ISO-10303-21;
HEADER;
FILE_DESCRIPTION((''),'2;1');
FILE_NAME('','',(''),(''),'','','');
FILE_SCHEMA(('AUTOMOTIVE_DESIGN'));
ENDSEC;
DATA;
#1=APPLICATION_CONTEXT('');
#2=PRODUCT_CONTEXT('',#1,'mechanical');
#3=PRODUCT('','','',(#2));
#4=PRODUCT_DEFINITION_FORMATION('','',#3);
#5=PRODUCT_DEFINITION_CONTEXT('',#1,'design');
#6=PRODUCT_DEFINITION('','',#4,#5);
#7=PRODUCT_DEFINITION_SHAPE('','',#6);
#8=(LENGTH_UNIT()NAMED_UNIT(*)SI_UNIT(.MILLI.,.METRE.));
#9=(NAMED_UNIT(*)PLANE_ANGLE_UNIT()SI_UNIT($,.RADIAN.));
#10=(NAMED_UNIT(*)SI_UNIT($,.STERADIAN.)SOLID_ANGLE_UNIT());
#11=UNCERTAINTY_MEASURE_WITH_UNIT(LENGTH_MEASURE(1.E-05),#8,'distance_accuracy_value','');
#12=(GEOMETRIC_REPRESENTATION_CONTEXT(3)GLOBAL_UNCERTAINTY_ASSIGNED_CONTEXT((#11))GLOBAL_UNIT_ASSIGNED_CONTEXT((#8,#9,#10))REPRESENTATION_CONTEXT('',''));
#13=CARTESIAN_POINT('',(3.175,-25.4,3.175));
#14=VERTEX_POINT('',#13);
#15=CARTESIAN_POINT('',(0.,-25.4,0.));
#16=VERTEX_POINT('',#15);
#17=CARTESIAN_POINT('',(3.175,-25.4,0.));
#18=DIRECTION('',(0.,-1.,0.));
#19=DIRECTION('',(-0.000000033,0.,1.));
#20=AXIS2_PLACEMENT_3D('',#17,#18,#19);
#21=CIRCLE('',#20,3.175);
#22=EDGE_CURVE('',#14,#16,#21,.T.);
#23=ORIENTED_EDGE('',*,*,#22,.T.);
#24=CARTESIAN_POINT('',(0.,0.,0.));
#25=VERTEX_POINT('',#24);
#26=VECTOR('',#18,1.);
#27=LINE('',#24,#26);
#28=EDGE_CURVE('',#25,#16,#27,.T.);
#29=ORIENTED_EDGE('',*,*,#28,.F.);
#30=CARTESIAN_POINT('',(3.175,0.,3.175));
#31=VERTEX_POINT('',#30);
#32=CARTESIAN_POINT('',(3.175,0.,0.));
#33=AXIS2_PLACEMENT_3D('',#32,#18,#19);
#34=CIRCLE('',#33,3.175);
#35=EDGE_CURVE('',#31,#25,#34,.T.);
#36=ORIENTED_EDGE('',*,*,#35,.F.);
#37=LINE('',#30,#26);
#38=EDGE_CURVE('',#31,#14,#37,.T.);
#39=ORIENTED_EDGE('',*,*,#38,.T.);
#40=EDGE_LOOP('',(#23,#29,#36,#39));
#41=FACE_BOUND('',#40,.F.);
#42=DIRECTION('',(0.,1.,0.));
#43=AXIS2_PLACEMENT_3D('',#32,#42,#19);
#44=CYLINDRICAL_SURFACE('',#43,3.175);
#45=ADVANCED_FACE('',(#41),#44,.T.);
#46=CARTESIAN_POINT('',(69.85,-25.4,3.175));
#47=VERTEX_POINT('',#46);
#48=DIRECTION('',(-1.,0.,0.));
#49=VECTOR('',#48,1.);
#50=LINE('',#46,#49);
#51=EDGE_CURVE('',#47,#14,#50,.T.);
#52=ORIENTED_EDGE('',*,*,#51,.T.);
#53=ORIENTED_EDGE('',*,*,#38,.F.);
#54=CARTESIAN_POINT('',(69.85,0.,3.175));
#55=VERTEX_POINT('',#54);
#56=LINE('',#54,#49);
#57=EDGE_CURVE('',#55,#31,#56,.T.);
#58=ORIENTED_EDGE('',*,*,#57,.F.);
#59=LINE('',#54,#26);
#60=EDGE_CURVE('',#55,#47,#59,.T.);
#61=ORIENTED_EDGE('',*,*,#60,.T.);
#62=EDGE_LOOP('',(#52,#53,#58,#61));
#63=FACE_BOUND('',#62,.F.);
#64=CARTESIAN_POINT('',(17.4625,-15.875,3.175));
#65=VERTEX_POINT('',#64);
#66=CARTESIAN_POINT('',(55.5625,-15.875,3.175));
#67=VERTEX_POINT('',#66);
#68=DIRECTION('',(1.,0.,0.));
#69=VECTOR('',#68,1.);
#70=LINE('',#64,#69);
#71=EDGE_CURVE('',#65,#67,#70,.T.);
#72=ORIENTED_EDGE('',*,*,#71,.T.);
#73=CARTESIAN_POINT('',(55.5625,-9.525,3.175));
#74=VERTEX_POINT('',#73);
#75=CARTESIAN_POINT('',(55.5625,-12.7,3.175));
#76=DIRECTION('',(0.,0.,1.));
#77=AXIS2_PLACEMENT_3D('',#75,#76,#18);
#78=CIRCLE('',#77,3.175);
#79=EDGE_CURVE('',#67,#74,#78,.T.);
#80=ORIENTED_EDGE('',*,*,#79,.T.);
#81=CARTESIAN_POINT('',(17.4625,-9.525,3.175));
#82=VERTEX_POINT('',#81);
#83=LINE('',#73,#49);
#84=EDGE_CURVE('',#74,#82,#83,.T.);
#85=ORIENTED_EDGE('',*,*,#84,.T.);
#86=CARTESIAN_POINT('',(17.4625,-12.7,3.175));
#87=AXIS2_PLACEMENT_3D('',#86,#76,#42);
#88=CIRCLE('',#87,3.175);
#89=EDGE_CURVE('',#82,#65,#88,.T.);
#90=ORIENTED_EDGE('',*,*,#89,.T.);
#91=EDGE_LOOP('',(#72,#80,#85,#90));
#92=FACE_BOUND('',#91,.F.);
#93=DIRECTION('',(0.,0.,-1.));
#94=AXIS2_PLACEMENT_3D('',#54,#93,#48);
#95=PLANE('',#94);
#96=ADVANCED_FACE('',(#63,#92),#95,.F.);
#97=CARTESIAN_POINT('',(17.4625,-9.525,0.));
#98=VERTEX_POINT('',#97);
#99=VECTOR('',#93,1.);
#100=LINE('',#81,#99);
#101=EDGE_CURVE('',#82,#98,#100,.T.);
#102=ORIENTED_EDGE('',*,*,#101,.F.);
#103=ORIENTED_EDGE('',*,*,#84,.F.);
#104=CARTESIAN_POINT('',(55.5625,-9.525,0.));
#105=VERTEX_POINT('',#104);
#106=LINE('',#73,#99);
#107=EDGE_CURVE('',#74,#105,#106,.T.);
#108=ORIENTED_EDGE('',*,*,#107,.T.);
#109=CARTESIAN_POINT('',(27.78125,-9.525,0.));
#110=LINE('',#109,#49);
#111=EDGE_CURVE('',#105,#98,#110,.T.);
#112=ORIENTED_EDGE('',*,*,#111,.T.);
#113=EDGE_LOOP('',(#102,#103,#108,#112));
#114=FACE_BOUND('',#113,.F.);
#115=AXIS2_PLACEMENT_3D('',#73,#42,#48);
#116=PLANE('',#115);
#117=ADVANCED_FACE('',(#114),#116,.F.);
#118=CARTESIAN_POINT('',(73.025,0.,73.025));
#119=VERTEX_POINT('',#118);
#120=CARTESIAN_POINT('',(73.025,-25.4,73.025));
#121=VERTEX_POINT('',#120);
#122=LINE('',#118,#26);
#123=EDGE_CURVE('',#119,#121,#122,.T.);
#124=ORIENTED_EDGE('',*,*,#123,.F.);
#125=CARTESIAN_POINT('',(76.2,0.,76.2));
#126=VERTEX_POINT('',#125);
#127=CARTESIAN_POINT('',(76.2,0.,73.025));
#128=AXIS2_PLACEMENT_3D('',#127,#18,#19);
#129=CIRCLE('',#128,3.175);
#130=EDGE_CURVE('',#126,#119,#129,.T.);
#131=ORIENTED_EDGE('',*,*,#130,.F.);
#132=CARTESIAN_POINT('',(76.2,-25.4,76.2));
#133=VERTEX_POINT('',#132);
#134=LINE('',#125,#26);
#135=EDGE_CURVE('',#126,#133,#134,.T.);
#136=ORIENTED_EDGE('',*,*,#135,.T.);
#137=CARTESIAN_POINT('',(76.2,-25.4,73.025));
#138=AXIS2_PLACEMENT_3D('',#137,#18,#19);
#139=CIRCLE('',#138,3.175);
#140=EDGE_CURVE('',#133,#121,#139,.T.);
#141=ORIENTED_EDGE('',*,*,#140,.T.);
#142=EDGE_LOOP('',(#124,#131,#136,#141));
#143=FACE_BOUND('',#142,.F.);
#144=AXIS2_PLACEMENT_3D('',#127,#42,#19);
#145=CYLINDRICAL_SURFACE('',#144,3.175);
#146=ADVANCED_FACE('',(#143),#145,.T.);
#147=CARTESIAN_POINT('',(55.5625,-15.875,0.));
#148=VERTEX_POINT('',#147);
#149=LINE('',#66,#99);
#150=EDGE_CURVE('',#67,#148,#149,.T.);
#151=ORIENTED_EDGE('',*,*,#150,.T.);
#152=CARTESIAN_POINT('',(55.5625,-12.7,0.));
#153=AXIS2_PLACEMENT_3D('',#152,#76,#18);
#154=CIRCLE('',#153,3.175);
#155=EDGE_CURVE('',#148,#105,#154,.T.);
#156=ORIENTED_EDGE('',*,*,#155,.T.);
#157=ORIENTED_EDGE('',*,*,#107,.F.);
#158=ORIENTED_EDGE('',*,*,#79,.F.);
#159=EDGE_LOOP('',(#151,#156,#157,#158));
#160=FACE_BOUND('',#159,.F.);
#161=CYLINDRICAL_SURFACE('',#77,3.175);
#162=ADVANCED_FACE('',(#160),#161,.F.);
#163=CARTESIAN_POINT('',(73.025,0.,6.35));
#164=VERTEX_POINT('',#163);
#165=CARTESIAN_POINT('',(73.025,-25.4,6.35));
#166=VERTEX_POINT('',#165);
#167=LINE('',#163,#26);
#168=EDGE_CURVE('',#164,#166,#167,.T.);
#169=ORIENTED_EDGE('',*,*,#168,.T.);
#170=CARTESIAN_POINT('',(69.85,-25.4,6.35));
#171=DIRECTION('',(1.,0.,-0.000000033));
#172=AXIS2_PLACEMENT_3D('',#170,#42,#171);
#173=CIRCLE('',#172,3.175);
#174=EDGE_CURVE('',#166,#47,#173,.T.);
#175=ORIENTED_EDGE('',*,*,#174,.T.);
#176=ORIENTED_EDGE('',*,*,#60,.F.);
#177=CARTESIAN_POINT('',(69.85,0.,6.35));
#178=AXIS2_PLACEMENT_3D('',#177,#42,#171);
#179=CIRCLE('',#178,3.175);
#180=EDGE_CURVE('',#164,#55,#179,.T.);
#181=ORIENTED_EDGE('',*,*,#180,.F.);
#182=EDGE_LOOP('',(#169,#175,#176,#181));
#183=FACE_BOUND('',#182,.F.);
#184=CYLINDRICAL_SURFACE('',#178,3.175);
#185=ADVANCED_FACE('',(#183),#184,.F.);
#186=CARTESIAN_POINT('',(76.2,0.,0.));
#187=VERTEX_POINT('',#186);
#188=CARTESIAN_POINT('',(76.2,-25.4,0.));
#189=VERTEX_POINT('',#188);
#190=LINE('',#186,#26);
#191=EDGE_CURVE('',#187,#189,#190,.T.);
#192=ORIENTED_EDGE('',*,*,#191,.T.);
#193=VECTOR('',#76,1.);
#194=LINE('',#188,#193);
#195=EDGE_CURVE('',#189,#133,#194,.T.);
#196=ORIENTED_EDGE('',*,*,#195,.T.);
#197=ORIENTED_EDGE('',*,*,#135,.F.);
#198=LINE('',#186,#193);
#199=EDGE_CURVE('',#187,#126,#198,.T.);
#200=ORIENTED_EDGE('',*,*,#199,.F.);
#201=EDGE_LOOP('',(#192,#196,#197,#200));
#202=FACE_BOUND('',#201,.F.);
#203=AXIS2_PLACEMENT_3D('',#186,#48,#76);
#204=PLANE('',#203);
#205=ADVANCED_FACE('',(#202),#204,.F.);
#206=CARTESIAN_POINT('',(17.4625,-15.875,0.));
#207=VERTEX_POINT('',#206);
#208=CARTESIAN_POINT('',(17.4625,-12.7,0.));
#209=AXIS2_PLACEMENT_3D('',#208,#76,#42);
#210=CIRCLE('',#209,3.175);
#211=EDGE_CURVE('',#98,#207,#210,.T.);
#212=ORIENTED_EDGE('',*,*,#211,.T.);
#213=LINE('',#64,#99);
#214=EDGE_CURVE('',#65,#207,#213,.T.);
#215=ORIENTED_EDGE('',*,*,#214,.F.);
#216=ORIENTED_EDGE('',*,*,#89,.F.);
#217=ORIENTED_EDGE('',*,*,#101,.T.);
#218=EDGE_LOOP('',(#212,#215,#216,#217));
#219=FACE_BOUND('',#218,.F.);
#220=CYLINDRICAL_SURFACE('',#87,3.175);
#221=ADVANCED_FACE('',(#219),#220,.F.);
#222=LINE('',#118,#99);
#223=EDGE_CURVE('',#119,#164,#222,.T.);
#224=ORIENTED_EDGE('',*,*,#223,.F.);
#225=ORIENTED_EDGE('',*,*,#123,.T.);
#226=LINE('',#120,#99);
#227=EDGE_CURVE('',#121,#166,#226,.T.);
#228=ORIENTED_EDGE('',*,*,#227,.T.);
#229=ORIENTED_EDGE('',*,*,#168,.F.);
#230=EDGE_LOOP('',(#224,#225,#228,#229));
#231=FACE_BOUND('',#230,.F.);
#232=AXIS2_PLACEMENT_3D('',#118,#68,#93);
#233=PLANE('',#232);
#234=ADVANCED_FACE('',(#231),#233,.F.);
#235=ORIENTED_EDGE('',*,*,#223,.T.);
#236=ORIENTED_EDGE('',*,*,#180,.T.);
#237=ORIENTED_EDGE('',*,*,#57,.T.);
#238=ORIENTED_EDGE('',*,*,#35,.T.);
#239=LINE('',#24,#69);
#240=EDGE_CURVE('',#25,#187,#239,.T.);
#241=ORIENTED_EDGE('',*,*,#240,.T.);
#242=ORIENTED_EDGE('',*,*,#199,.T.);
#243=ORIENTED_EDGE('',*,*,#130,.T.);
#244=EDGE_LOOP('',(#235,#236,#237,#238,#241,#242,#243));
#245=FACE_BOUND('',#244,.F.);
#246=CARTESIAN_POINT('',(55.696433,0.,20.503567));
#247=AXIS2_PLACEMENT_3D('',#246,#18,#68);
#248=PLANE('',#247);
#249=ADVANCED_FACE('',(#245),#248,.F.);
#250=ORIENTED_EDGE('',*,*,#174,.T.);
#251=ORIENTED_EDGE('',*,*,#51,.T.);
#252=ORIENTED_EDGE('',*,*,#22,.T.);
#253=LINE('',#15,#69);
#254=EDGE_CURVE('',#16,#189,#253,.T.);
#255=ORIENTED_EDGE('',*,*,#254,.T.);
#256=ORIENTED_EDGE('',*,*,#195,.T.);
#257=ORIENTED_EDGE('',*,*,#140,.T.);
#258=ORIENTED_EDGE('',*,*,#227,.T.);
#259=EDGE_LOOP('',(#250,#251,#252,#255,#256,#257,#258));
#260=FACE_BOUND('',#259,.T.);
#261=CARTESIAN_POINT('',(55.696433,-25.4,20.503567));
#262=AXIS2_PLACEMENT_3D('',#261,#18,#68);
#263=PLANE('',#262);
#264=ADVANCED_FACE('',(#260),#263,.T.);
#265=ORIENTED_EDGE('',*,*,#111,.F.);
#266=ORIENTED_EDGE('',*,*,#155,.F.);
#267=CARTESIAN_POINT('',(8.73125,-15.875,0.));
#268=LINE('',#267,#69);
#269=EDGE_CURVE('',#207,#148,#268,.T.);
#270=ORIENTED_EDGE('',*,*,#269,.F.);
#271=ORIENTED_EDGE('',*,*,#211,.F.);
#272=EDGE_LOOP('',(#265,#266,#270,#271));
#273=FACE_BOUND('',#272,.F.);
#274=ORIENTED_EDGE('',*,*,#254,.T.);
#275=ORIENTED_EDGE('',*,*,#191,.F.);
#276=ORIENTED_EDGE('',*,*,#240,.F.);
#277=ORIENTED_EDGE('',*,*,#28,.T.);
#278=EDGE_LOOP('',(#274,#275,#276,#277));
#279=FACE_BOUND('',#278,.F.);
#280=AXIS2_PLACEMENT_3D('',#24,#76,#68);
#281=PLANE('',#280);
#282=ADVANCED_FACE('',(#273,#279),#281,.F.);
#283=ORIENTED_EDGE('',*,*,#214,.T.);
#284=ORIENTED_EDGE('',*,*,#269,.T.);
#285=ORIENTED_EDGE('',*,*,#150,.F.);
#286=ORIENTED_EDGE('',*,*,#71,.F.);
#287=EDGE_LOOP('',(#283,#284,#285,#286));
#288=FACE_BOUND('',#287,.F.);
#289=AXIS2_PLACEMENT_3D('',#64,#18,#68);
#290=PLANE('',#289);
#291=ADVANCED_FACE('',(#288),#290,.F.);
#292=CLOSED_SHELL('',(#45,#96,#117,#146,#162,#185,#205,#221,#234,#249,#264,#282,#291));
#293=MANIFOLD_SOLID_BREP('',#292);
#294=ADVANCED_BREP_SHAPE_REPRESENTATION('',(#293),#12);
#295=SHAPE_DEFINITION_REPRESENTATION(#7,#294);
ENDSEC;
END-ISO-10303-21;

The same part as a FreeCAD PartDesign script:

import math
import FreeCAD as App
import Part
import Sketcher
from FreeCAD import Vector
Q = App.Units.Quantity

doc = App.newDocument("Part")
body = doc.addObject("PartDesign::Body", "Body")

sketch1 = body.newObject("Sketcher::SketchObject", "Sketch")
sketch1.AttachmentSupport = (doc.getObject("XZ_Plane"), [""])
sketch1.MapMode = "FlatFace"
sketch1.addGeometry([
    Part.ArcOfCircle(Part.Circle(Vector(3.175, 0, 0), Vector(0, 0, 1), 3.175), math.radians(90.000002), math.radians(179.999998)),
    Part.LineSegment(Vector(0, 0, 0), Vector(76.2, 0, 0)),
    Part.LineSegment(Vector(76.2, 0, 0), Vector(76.2, 76.2, 0)),
    Part.ArcOfCircle(Part.Circle(Vector(76.2, 73.025, 0), Vector(0, 0, 1), 3.175), math.radians(90.000002), math.radians(179.999998)),
    Part.LineSegment(Vector(73.025, 73.025, 0), Vector(73.025, 6.35, 0)),
    Part.ArcOfCircle(Part.Circle(Vector(69.85, 6.35, 0), Vector(0, 0, 1), 3.175), math.radians(-89.999998), math.radians(-0.000002)),
    Part.LineSegment(Vector(69.85, 3.175, 0), Vector(3.175, 3.175, 0)),
], False)
sketch1.addConstraint([
    Sketcher.Constraint("Coincident", 0, 2, 1, 1),
    Sketcher.Constraint("Coincident", 1, 2, 2, 1),
    Sketcher.Constraint("Coincident", 2, 2, 3, 1),
    Sketcher.Constraint("Tangent", 3, 2, 4, 1),
    Sketcher.Constraint("Tangent", 4, 2, 5, 2),
    Sketcher.Constraint("Tangent", 5, 1, 6, 1),
    Sketcher.Constraint("Tangent", 6, 2, 0, 1),
    Sketcher.Constraint("Horizontal", 1),
    Sketcher.Constraint("Vertical", 2),
    Sketcher.Constraint("Vertical", 4),
    Sketcher.Constraint("Horizontal", 6),
    Sketcher.Constraint("Coincident", 0, 2, -1, 1),
    Sketcher.Constraint("Equal", 0, 3),
    Sketcher.Constraint("Equal", 3, 5),
    Sketcher.Constraint("PointOnObject", 0, 3, -1),
    Sketcher.Constraint("Vertical", 3, 3, 1, 2),
    Sketcher.Constraint("Equal", 1, 2),
    Sketcher.Constraint("DistanceX", 1, 1, 1, 2, Q("3 in")),
    Sketcher.Constraint("Radius", 0, Q("0.125 in")),
])
pad1 = body.newObject("PartDesign::Pad", "Pad")
pad1.Profile = sketch1
pad1.Length = Q("1 in")

sketch2 = body.newObject("Sketcher::SketchObject", "Sketch001")
sketch2.AttachmentSupport = (doc.getObject("XY_Plane"), [""])
sketch2.MapMode = "FlatFace"
sketch2.AttachmentOffset = App.Placement(Vector(0, 0, 0.125 * 25.4), App.Rotation())
sketch2.addGeometry([
    Part.LineSegment(Vector(55.5625, -9.525, 0), Vector(17.4625, -9.525, 0)),
    Part.ArcOfCircle(Part.Circle(Vector(17.4625, -12.7, 0), Vector(0, 0, 1), 3.175), math.radians(90), math.radians(270)),
    Part.LineSegment(Vector(17.4625, -15.875, 0), Vector(55.5625, -15.875, 0)),
    Part.ArcOfCircle(Part.Circle(Vector(55.5625, -12.7, 0), Vector(0, 0, 1), 3.175), math.radians(-90), math.radians(90)),
], False)
sketch2.addConstraint([
    Sketcher.Constraint("Tangent", 0, 2, 1, 1),
    Sketcher.Constraint("Tangent", 1, 2, 2, 1),
    Sketcher.Constraint("Tangent", 2, 2, 3, 1),
    Sketcher.Constraint("Tangent", 3, 2, 0, 1),
    Sketcher.Constraint("Horizontal", 0),
    Sketcher.Constraint("Horizontal", 2),
    Sketcher.Constraint("DistanceX", 0, 2, 0, 1, Q("1.5 in")),
    Sketcher.Constraint("Radius", 1, Q("0.125 in")),
    Sketcher.Constraint("DistanceY", 1, 3, -1, 1, Q("0.5 in")),
    Sketcher.Constraint("DistanceX", -1, 1, 1, 3, Q("0.6875 in")),
])
pocket1 = body.newObject("PartDesign::Pocket", "Pocket")
pocket1.Profile = sketch2
pocket1.Type = "ThroughAll"

doc.recompute()
